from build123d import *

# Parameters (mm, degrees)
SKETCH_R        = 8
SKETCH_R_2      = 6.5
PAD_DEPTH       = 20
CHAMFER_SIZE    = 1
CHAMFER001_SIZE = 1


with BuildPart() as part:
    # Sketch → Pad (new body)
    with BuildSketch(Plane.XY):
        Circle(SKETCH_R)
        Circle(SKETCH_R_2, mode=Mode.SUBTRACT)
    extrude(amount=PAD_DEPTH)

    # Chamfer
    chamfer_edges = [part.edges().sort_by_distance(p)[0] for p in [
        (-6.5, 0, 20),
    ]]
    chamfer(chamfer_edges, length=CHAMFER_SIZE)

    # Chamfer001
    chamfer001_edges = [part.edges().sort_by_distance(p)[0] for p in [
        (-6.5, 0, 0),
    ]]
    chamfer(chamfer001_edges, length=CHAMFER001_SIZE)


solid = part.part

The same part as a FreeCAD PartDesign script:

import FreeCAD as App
import Part
import Sketcher
from FreeCAD import Vector


def edges_at(feature, points):
    """Names of the edges that pass closest to the given points."""
    edges = feature.Shape.Edges
    near = lambda p: min(range(len(edges)), key=lambda i: edges[i].distToShape(Part.Vertex(*p))[0])
    return sorted({f"Edge{near(p) + 1}" for p in points})

doc = App.newDocument("Part")
body = doc.addObject("PartDesign::Body", "Body")

sketch1 = doc.addObject("Sketcher::SketchObject", "Sketch")
body.addObject(sketch1)
sketch1.AttachmentSupport = (doc.XY_Plane, [""])
sketch1.MapMode = "FlatFace"
sketch1.addGeometry(Part.Circle(Vector(0, 0, 0), Vector(0, 0, 1), 8), False)
sketch1.addGeometry(Part.Circle(Vector(0, 0, 0), Vector(0, 0, 1), 6), False)
sketch1.addConstraint(Sketcher.Constraint("Coincident", 0, 3, -1, 1))
sketch1.addConstraint(Sketcher.Constraint("Coincident", 1, 3, -1, 1))
sketch1.addConstraint(Sketcher.Constraint("Diameter", 0, 16.0))
sketch1.addConstraint(Sketcher.Constraint("Diameter", 1, 13.0))
pad1 = doc.addObject("PartDesign::Pad", "Pad")
body.addObject(pad1)
pad1.Profile = sketch1
pad1.Length = 20
doc.recompute()

chamfer = doc.addObject("PartDesign::Chamfer", "Chamfer")
body.addObject(chamfer)
chamfer.Base = (pad1, edges_at(pad1, [(-6.5, 0, 20)]))
chamfer.Size = 1
doc.recompute()

chamfer2 = doc.addObject("PartDesign::Chamfer", "Chamfer001")
body.addObject(chamfer2)
chamfer2.Base = (chamfer, edges_at(chamfer, [(-6.5, 0, 0)]))
chamfer2.Size = 1

doc.recompute()
